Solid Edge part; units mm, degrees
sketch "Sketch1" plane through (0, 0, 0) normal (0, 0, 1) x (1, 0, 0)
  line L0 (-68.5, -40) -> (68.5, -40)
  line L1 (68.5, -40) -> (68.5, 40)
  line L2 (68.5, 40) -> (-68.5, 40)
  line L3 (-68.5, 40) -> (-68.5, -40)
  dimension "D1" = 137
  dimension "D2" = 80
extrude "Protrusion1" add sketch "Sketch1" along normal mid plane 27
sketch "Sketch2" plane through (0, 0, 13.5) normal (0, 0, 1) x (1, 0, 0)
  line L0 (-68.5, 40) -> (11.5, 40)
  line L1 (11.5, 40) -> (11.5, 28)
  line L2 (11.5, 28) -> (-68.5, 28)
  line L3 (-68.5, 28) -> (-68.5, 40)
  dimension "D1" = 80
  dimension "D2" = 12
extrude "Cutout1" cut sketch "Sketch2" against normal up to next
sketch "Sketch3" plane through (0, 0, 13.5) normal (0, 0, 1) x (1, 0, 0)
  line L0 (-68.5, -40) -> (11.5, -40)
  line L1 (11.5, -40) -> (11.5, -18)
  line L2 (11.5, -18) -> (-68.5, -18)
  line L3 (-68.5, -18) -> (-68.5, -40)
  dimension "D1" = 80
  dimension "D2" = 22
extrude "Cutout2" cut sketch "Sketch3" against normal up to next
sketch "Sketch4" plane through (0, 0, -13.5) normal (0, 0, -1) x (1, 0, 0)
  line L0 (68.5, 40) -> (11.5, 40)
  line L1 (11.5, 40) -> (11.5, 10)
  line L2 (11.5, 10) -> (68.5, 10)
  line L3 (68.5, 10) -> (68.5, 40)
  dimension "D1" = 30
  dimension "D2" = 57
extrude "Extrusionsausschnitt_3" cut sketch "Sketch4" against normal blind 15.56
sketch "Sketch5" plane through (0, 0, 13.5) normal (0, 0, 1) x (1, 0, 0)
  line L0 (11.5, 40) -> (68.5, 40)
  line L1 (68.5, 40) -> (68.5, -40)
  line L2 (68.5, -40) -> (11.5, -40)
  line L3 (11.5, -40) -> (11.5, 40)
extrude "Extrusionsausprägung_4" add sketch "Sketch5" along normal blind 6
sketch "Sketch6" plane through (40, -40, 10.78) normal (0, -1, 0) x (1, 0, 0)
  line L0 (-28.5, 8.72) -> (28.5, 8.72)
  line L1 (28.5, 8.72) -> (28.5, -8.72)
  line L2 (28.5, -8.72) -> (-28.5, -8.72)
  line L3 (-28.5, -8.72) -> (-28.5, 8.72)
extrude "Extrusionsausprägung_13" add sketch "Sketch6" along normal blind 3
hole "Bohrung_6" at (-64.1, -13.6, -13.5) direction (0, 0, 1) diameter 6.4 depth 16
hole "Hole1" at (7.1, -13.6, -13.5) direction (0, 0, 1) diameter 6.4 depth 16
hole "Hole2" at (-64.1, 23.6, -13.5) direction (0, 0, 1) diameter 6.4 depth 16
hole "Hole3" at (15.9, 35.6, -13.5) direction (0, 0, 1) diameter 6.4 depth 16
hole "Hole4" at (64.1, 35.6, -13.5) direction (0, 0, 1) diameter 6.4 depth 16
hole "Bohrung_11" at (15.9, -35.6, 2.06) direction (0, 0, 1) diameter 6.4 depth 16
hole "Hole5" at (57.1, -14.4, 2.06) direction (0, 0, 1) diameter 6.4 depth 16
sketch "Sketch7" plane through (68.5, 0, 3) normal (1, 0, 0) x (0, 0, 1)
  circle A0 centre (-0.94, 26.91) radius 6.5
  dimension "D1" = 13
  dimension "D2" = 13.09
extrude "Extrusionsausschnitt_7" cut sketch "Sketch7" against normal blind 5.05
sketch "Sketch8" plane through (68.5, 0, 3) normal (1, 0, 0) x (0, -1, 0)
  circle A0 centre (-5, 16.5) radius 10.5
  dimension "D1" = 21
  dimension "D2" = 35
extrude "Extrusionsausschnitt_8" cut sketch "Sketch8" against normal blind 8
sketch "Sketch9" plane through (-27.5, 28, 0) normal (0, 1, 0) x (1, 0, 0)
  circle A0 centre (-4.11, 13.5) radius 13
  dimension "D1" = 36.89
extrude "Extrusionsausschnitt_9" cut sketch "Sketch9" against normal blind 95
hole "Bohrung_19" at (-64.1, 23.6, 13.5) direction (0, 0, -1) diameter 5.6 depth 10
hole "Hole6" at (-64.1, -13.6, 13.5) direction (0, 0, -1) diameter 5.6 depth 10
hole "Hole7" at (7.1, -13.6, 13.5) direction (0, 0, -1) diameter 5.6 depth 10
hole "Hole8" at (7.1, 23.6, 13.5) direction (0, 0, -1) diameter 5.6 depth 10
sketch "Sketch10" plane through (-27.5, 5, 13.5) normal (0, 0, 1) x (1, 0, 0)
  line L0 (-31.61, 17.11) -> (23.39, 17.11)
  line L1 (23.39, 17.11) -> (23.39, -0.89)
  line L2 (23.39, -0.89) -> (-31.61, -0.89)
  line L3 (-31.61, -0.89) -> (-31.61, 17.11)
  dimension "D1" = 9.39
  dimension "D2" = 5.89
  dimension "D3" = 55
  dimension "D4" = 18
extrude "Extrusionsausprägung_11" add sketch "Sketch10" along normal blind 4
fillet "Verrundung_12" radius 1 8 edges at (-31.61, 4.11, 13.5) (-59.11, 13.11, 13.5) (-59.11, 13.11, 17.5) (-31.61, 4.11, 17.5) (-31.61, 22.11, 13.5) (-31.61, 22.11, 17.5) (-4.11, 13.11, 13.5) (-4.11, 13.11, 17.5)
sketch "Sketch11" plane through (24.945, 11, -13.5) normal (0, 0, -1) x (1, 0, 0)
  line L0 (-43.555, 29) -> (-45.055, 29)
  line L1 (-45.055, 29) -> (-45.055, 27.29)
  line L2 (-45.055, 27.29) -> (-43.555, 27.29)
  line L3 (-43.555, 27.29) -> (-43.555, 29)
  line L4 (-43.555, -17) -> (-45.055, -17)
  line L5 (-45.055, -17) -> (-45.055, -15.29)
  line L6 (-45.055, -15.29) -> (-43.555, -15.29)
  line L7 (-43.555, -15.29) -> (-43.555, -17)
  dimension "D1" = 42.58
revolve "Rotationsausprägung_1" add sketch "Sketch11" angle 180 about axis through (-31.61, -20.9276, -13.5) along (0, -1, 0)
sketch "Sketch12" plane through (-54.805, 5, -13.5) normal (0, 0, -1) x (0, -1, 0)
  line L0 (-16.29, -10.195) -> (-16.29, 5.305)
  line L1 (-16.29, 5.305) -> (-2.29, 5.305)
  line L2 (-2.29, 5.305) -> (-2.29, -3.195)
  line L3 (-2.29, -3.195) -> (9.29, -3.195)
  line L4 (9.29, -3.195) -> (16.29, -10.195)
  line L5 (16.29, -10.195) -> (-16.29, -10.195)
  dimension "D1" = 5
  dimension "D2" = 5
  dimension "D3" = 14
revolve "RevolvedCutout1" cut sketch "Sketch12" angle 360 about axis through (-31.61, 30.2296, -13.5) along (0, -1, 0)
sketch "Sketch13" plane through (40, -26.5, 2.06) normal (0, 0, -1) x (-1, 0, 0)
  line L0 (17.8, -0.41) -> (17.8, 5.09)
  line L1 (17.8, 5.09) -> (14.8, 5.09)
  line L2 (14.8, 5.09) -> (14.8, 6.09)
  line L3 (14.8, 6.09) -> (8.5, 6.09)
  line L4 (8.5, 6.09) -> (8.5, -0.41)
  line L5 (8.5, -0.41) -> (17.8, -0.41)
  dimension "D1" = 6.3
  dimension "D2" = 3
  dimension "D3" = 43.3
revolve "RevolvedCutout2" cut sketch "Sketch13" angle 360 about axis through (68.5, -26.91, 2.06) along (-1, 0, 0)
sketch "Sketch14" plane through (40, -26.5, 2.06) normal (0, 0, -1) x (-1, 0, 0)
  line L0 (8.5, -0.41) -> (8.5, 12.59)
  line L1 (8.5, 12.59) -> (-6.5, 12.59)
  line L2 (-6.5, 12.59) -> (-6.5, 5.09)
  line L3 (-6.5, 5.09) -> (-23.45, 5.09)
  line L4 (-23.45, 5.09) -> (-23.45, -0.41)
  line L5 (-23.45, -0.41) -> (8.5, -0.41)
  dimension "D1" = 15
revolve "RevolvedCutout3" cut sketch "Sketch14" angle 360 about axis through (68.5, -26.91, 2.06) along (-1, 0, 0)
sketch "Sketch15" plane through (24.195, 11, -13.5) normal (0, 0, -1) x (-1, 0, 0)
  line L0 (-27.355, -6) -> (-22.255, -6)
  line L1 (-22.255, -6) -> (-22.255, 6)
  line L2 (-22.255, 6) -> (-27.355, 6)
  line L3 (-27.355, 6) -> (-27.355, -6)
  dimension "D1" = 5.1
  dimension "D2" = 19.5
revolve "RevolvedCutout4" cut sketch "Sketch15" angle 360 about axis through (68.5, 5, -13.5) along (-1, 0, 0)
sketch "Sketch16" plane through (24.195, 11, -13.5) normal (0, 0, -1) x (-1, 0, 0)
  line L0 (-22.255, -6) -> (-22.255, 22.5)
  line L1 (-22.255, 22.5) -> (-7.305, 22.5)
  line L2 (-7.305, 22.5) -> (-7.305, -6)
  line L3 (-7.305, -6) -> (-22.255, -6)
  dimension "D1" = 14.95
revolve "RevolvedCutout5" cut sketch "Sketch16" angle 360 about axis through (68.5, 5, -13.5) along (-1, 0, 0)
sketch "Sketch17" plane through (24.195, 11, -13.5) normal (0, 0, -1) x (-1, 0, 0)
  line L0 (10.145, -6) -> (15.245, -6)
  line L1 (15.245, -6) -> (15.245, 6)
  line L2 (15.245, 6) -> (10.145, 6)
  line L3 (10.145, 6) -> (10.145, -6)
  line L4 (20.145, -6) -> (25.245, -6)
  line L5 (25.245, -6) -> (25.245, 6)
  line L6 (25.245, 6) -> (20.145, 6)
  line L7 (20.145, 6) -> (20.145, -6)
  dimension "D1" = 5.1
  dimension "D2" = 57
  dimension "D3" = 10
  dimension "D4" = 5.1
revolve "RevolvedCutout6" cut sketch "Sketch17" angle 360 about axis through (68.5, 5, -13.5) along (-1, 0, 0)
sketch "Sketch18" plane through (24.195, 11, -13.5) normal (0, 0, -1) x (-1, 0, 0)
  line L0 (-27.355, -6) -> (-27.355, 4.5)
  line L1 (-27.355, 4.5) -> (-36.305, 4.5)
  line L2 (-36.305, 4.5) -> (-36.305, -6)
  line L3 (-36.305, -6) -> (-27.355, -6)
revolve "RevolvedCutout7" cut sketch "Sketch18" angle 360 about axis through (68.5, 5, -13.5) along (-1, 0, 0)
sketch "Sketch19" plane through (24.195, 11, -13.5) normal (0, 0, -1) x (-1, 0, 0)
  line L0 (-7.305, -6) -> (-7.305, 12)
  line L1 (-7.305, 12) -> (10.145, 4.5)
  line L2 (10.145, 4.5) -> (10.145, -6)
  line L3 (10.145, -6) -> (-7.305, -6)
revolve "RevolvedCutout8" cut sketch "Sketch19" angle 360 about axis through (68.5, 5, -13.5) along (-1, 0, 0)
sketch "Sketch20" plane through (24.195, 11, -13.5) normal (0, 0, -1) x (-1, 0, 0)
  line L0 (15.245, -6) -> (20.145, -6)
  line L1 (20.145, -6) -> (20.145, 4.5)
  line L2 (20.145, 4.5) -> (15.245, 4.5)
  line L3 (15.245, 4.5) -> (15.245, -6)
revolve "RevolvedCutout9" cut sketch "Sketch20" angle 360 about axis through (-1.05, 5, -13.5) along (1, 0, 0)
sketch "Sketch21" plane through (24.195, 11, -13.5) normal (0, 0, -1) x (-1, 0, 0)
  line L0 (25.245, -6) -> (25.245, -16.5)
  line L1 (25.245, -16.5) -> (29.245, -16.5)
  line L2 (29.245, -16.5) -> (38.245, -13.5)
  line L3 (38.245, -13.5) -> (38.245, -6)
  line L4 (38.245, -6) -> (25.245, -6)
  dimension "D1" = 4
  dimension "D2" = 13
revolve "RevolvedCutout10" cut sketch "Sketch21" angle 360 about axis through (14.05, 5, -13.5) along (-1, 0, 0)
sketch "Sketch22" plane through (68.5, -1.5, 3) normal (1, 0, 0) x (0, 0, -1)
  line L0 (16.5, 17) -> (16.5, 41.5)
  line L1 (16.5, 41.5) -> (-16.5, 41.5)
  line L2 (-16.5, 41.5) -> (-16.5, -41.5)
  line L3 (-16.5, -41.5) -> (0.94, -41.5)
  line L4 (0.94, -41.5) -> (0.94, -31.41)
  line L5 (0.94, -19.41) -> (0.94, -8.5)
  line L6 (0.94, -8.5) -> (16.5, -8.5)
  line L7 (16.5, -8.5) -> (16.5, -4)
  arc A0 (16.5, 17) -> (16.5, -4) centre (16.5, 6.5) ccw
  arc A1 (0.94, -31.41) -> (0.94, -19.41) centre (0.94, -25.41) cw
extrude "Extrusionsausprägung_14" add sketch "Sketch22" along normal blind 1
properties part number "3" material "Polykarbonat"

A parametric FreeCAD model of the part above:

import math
import FreeCAD as App
import Part
import Sketcher

V = App.Vector
Q = App.Units.Quantity


def edges_at(feature, points):
    """Names of the edges that pass closest to the given points."""
    edges = feature.Shape.Edges
    near = lambda p: min(range(len(edges)), key=lambda i: edges[i].distToShape(Part.Vertex(*p))[0])
    return sorted({f"Edge{near(p) + 1}" for p in points})


def add_polygon(sketch, points):
    """Adds a closed chain of lines whose ends are joined by coincident constraints."""
    first, n = sketch.GeometryCount, len(points)
    for a, b in zip(points, points[1:] + points[:1]):
        sketch.addGeometry(Part.LineSegment(App.Vector(*a, 0), App.Vector(*b, 0)), False)
    for i in range(n):
        sketch.addConstraint(Sketcher.Constraint("Coincident", first + i, 2, first + (i + 1) % n, 1))

doc = App.newDocument("Part")
body = doc.addObject("PartDesign::Body", "Body")

sketch1 = body.newObject("Sketcher::SketchObject", "Sketch")
sketch1.AttachmentSupport = (doc.getObject("XY_Plane"), [""])
sketch1.MapMode = "FlatFace"
add_polygon(sketch1, [(-68.5, 40), (-68.5, -40), (68.5, -40), (68.5, 40)])
sketch1.addConstraint(Sketcher.Constraint("Vertical", 0))
sketch1.addConstraint(Sketcher.Constraint("Horizontal", 1))
sketch1.addConstraint(Sketcher.Constraint("Vertical", 2))
sketch1.addConstraint(Sketcher.Constraint("Horizontal", 3))
sketch1.addConstraint(Sketcher.Constraint("Symmetric", 0, 2, 2, 2, -1, 1))
sketch1.addConstraint(Sketcher.Constraint("DistanceX", 0, 2, -1, 1, Q("68.5 mm")))
sketch1.addConstraint(Sketcher.Constraint("DistanceY", 0, 2, 0, 1, Q("80 mm")))
pad1 = body.newObject("PartDesign::Pad", "Pad")
pad1.Profile = sketch1
pad1.Length = 27
pad1.Midplane = True

sketch2 = body.newObject("Sketcher::SketchObject", "Sketch001")
sketch2.AttachmentSupport = (doc.getObject("XY_Plane"), [""])
sketch2.MapMode = "FlatFace"
sketch2.AttachmentOffset = App.Placement(V(0, 0, 13.5), App.Rotation())
add_polygon(sketch2, [(11.5, 40), (-68.5, 40), (-68.5, 28), (11.5, 28)])
sketch2.addConstraint(Sketcher.Constraint("Horizontal", 0))
sketch2.addConstraint(Sketcher.Constraint("Vertical", 1))
sketch2.addConstraint(Sketcher.Constraint("Horizontal", 2))
sketch2.addConstraint(Sketcher.Constraint("Vertical", 3))
sketch2.addConstraint(Sketcher.Constraint("DistanceX", 0, 2, -1, 1, Q("68.5 mm")))
sketch2.addConstraint(Sketcher.Constraint("DistanceX", -1, 1, 2, 2, Q("11.5 mm")))
sketch2.addConstraint(Sketcher.Constraint("DistanceY", 1, 2, 1, 1, Q("12 mm")))
sketch2.addConstraint(Sketcher.Constraint("DistanceY", -1, 1, 0, 2, Q("40 mm")))
pocket1 = body.newObject("PartDesign::Pocket", "Pocket")
pocket1.Profile = sketch2
pocket1.Type = "UpToFirst"

sketch3 = body.newObject("Sketcher::SketchObject", "Sketch002")
sketch3.AttachmentSupport = (doc.getObject("XY_Plane"), [""])
sketch3.MapMode = "FlatFace"
sketch3.AttachmentOffset = App.Placement(V(0, 0, 13.5), App.Rotation())
add_polygon(sketch3, [(-68.5, -18), (-68.5, -40), (11.5, -40), (11.5, -18)])
sketch3.addConstraint(Sketcher.Constraint("Vertical", 0))
sketch3.addConstraint(Sketcher.Constraint("Horizontal", 1))
sketch3.addConstraint(Sketcher.Constraint("Vertical", 2))
sketch3.addConstraint(Sketcher.Constraint("Horizontal", 3))
sketch3.addConstraint(Sketcher.Constraint("DistanceX", -1, 1, 1, 2, Q("11.5 mm")))
sketch3.addConstraint(Sketcher.Constraint("DistanceX", 1, 1, 1, 2, Q("80 mm")))
sketch3.addConstraint(Sketcher.Constraint("DistanceY", 0, 2, 0, 1, Q("22 mm")))
sketch3.addConstraint(Sketcher.Constraint("DistanceY", 0, 2, -1, 1, Q("40 mm")))
pocket2 = body.newObject("PartDesign::Pocket", "Pocket001")
pocket2.Profile = sketch3
pocket2.Type = "UpToFirst"

sketch4 = body.newObject("Sketcher::SketchObject", "Sketch003")
sketch4.AttachmentSupport = (doc.getObject("XY_Plane"), [""])
sketch4.MapMode = "FlatFace"
sketch4.AttachmentOffset = App.Placement(V(0, 0, -13.5), App.Rotation())
add_polygon(sketch4, [(68.5, -10), (68.5, -40), (11.5, -40), (11.5, -10)])
sketch4.addConstraint(Sketcher.Constraint("Vertical", 0))
sketch4.addConstraint(Sketcher.Constraint("Horizontal", 1))
sketch4.addConstraint(Sketcher.Constraint("Vertical", 2))
sketch4.addConstraint(Sketcher.Constraint("Horizontal", 3))
sketch4.addConstraint(Sketcher.Constraint("DistanceX", -1, 1, 0, 2, Q("68.5 mm")))
sketch4.addConstraint(Sketcher.Constraint("DistanceX", -1, 1, 1, 2, Q("11.5 mm")))
sketch4.addConstraint(Sketcher.Constraint("DistanceY", 0, 2, 0, 1, Q("30 mm")))
sketch4.addConstraint(Sketcher.Constraint("DistanceY", 0, 2, -1, 1, Q("40 mm")))
pocket3 = body.newObject("PartDesign::Pocket", "Pocket002")
pocket3.Profile = sketch4
pocket3.Length = 15.56
pocket3.Reversed = True

sketch5 = body.newObject("Sketcher::SketchObject", "Sketch004")
sketch5.AttachmentSupport = (doc.getObject("XY_Plane"), [""])
sketch5.MapMode = "FlatFace"
sketch5.AttachmentOffset = App.Placement(V(0, 0, 13.5), App.Rotation())
add_polygon(sketch5, [(68.5, 40), (11.5, 40), (11.5, -40), (68.5, -40)])
sketch5.addConstraint(Sketcher.Constraint("Horizontal", 0))
sketch5.addConstraint(Sketcher.Constraint("Vertical", 1))
sketch5.addConstraint(Sketcher.Constraint("Horizontal", 2))
sketch5.addConstraint(Sketcher.Constraint("Vertical", 3))
sketch5.addConstraint(Sketcher.Constraint("DistanceX", 0, 2, 0, 1, Q("57 mm")))
sketch5.addConstraint(Sketcher.Constraint("DistanceY", 1, 2, 1, 1, Q("80 mm")))
sketch5.addConstraint(Sketcher.Constraint("DistanceY", -1, 1, 0, 2, Q("40 mm")))
sketch5.addConstraint(Sketcher.Constraint("DistanceX", -1, 1, 0, 2, Q("11.5 mm")))
pad2 = body.newObject("PartDesign::Pad", "Pad001")
pad2.Profile = sketch5
pad2.Length = 6

sketch6 = body.newObject("Sketcher::SketchObject", "Sketch005")
sketch6.AttachmentSupport = (doc.getObject("XZ_Plane"), [""])
sketch6.MapMode = "FlatFace"
sketch6.AttachmentOffset = App.Placement(V(0, 0, 40), App.Rotation())
add_polygon(sketch6, [(68.5, 19.5), (11.5, 19.5), (11.5, 2.06), (68.5, 2.06)])
sketch6.addConstraint(Sketcher.Constraint("Horizontal", 0))
sketch6.addConstraint(Sketcher.Constraint("Vertical", 1))
sketch6.addConstraint(Sketcher.Constraint("Horizontal", 2))
sketch6.addConstraint(Sketcher.Constraint("Vertical", 3))
sketch6.addConstraint(Sketcher.Constraint("DistanceX", 0, 2, 0, 1, Q("57 mm")))
sketch6.addConstraint(Sketcher.Constraint("DistanceY", 1, 2, 1, 1, Q("17.44 mm")))
sketch6.addConstraint(Sketcher.Constraint("DistanceX", -1, 1, 0, 2, Q("11.5 mm")))
sketch6.addConstraint(Sketcher.Constraint("DistanceY", -1, 1, 0, 2, Q("19.5 mm")))
pad3 = body.newObject("PartDesign::Pad", "Pad002")
pad3.Profile = sketch6
pad3.Length = 3

sketch7 = body.newObject("Sketcher::SketchObject", "Sketch006")
sketch7.AttachmentSupport = (doc.getObject("XY_Plane"), [""])
sketch7.MapMode = "FlatFace"
sketch7.AttachmentOffset = App.Placement(V(0, 0, -13.5), App.Rotation())
sketch7.addGeometry(Part.Circle(V(-64.1, -13.6, 0), V(0, 0, 1), 3.2), False)
sketch7.addConstraint(Sketcher.Constraint("Diameter", 0, Q("6.4 mm")))
sketch7.addConstraint(Sketcher.Constraint("DistanceX", 0, 3, -1, 1, Q("64.1 mm")))
sketch7.addConstraint(Sketcher.Constraint("DistanceY", 0, 3, -1, 1, Q("13.6 mm")))
doc.recompute()
hole = body.newObject("PartDesign::Hole", "Hole")
hole.Profile = sketch7
hole.ThreadType = "None"
hole.Diameter = 6.4
hole.DepthType = "Dimension"
hole.Depth = 16
hole.DrillPoint = "Flat"
hole.Reversed = True

sketch8 = body.newObject("Sketcher::SketchObject", "Sketch007")
sketch8.AttachmentSupport = (doc.getObject("XY_Plane"), [""])
sketch8.MapMode = "FlatFace"
sketch8.AttachmentOffset = App.Placement(V(0, 0, -13.5), App.Rotation())
sketch8.addGeometry(Part.Circle(V(7.1, -13.6, 0), V(0, 0, 1), 3.2), False)
sketch8.addConstraint(Sketcher.Constraint("Diameter", 0, Q("6.4 mm")))
sketch8.addConstraint(Sketcher.Constraint("DistanceX", -1, 1, 0, 3, Q("7.1 mm")))
sketch8.addConstraint(Sketcher.Constraint("DistanceY", 0, 3, -1, 1, Q("13.6 mm")))
doc.recompute()
hole2 = body.newObject("PartDesign::Hole", "Hole001")
hole2.Profile = sketch8
hole2.ThreadType = "None"
hole2.Diameter = 6.4
hole2.DepthType = "Dimension"
hole2.Depth = 16
hole2.DrillPoint = "Flat"
hole2.Reversed = True

sketch9 = body.newObject("Sketcher::SketchObject", "Sketch008")
sketch9.AttachmentSupport = (doc.getObject("XY_Plane"), [""])
sketch9.MapMode = "FlatFace"
sketch9.AttachmentOffset = App.Placement(V(0, 0, -13.5), App.Rotation())
sketch9.addGeometry(Part.Circle(V(-64.1, 23.6, 0), V(0, 0, 1), 3.2), False)
sketch9.addConstraint(Sketcher.Constraint("Diameter", 0, Q("6.4 mm")))
sketch9.addConstraint(Sketcher.Constraint("DistanceX", 0, 3, -1, 1, Q("64.1 mm")))
sketch9.addConstraint(Sketcher.Constraint("DistanceY", -1, 1, 0, 3, Q("23.6 mm")))
doc.recompute()
hole3 = body.newObject("PartDesign::Hole", "Hole002")
hole3.Profile = sketch9
hole3.ThreadType = "None"
hole3.Diameter = 6.4
hole3.DepthType = "Dimension"
hole3.Depth = 16
hole3.DrillPoint = "Flat"
hole3.Reversed = True

sketch10 = body.newObject("Sketcher::SketchObject", "Sketch009")
sketch10.AttachmentSupport = (doc.getObject("XY_Plane"), [""])
sketch10.MapMode = "FlatFace"
sketch10.AttachmentOffset = App.Placement(V(0, 0, -13.5), App.Rotation())
sketch10.addGeometry(Part.Circle(V(15.9, 35.6, 0), V(0, 0, 1), 3.2), False)
sketch10.addConstraint(Sketcher.Constraint("Diameter", 0, Q("6.4 mm")))
sketch10.addConstraint(Sketcher.Constraint("DistanceX", -1, 1, 0, 3, Q("15.9 mm")))
sketch10.addConstraint(Sketcher.Constraint("DistanceY", -1, 1, 0, 3, Q("35.6 mm")))
doc.recompute()
hole4 = body.newObject("PartDesign::Hole", "Hole003")
hole4.Profile = sketch10
hole4.ThreadType = "None"
hole4.Diameter = 6.4
hole4.DepthType = "Dimension"
hole4.Depth = 16
hole4.DrillPoint = "Flat"
hole4.Reversed = True

sketch11 = body.newObject("Sketcher::SketchObject", "Sketch010")
sketch11.AttachmentSupport = (doc.getObject("XY_Plane"), [""])
sketch11.MapMode = "FlatFace"
sketch11.AttachmentOffset = App.Placement(V(0, 0, -13.5), App.Rotation())
sketch11.addGeometry(Part.Circle(V(64.1, 35.6, 0), V(0, 0, 1), 3.2), False)
sketch11.addConstraint(Sketcher.Constraint("Diameter", 0, Q("6.4 mm")))
sketch11.addConstraint(Sketcher.Constraint("DistanceX", -1, 1, 0, 3, Q("64.1 mm")))
sketch11.addConstraint(Sketcher.Constraint("DistanceY", -1, 1, 0, 3, Q("35.6 mm")))
doc.recompute()
hole5 = body.newObject("PartDesign::Hole", "Hole004")
hole5.Profile = sketch11
hole5.ThreadType = "None"
hole5.Diameter = 6.4
hole5.DepthType = "Dimension"
hole5.Depth = 16
hole5.DrillPoint = "Flat"
hole5.Reversed = True

sketch12 = body.newObject("Sketcher::SketchObject", "Sketch011")
sketch12.AttachmentSupport = (doc.getObject("XY_Plane"), [""])
sketch12.MapMode = "FlatFace"
sketch12.AttachmentOffset = App.Placement(V(0, 0, 2.06), App.Rotation())
sketch12.addGeometry(Part.Circle(V(15.9, -35.6, 0), V(0, 0, 1), 3.2), False)
sketch12.addConstraint(Sketcher.Constraint("Diameter", 0, Q("6.4 mm")))
sketch12.addConstraint(Sketcher.Constraint("DistanceX", -1, 1, 0, 3, Q("15.9 mm")))
sketch12.addConstraint(Sketcher.Constraint("DistanceY", 0, 3, -1, 1, Q("35.6 mm")))
doc.recompute()
hole6 = body.newObject("PartDesign::Hole", "Hole005")
hole6.Profile = sketch12
hole6.ThreadType = "None"
hole6.Diameter = 6.4
hole6.DepthType = "Dimension"
hole6.Depth = 16
hole6.DrillPoint = "Flat"
hole6.Reversed = True

sketch13 = body.newObject("Sketcher::SketchObject", "Sketch012")
sketch13.AttachmentSupport = (doc.getObject("XY_Plane"), [""])
sketch13.MapMode = "FlatFace"
sketch13.AttachmentOffset = App.Placement(V(0, 0, 2.06), App.Rotation())
sketch13.addGeometry(Part.Circle(V(57.1, -14.4, 0), V(0, 0, 1), 3.2), False)
sketch13.addConstraint(Sketcher.Constraint("Diameter", 0, Q("6.4 mm")))
sketch13.addConstraint(Sketcher.Constraint("DistanceX", -1, 1, 0, 3, Q("57.1 mm")))
sketch13.addConstraint(Sketcher.Constraint("DistanceY", 0, 3, -1, 1, Q("14.4 mm")))
doc.recompute()
hole7 = body.newObject("PartDesign::Hole", "Hole006")
hole7.Profile = sketch13
hole7.ThreadType = "None"
hole7.Diameter = 6.4
hole7.DepthType = "Dimension"
hole7.Depth = 16
hole7.DrillPoint = "Flat"
hole7.Reversed = True

sketch14 = body.newObject("Sketcher::SketchObject", "Sketch013")
sketch14.AttachmentSupport = (doc.getObject("YZ_Plane"), [""])
sketch14.MapMode = "FlatFace"
sketch14.AttachmentOffset = App.Placement(V(0, 0, 68.5), App.Rotation())
sketch14.addGeometry(Part.Circle(V(-26.91, 2.06, 0), V(0, 0, 1), 6.5), False)
sketch14.addConstraint(Sketcher.Constraint("Diameter", 0, Q("13 mm")))
sketch14.addConstraint(Sketcher.Constraint("DistanceX", 0, 3, -1, 1, Q("26.91 mm")))
sketch14.addConstraint(Sketcher.Constraint("DistanceY", -1, 1, 0, 3, Q("2.06 mm")))
pocket4 = body.newObject("PartDesign::Pocket", "Pocket003")
pocket4.Profile = sketch14
pocket4.Length = 5.05

sketch15 = body.newObject("Sketcher::SketchObject", "Sketch014")
sketch15.AttachmentSupport = (doc.getObject("YZ_Plane"), [""])
sketch15.MapMode = "FlatFace"
sketch15.AttachmentOffset = App.Placement(V(0, 0, 68.5), App.Rotation())
sketch15.addGeometry(Part.Circle(V(5, -13.5, 0), V(0, 0, 1), 10.5), False)
sketch15.addConstraint(Sketcher.Constraint("Diameter", 0, Q("21 mm")))
sketch15.addConstraint(Sketcher.Constraint("DistanceX", -1, 1, 0, 3, Q("5 mm")))
sketch15.addConstraint(Sketcher.Constraint("DistanceY", 0, 3, -1, 1, Q("13.5 mm")))
pocket5 = body.newObject("PartDesign::Pocket", "Pocket004")
pocket5.Profile = sketch15
pocket5.Length = 8

sketch16 = body.newObject("Sketcher::SketchObject", "Sketch015")
sketch16.AttachmentSupport = (doc.getObject("XZ_Plane"), [""])
sketch16.MapMode = "FlatFace"
sketch16.AttachmentOffset = App.Placement(V(0, 0, -28), App.Rotation())
sketch16.addGeometry(Part.Circle(V(-31.61, -13.5, 0), V(0, 0, 1), 13), False)
sketch16.addConstraint(Sketcher.Constraint("Diameter", 0, Q("26 mm")))
sketch16.addConstraint(Sketcher.Constraint("DistanceY", 0, 3, -1, 1, Q("13.5 mm")))
sketch16.addConstraint(Sketcher.Constraint("DistanceX", 0, 3, -1, 1, Q("31.61 mm")))
pocket6 = body.newObject("PartDesign::Pocket", "Pocket005")
pocket6.Profile = sketch16
pocket6.Length = 95
pocket6.Reversed = True

sketch17 = body.newObject("Sketcher::SketchObject", "Sketch016")
sketch17.AttachmentSupport = (doc.getObject("XY_Plane"), [""])
sketch17.MapMode = "FlatFace"
sketch17.AttachmentOffset = App.Placement(V(0, 0, 13.5), App.Rotation())
sketch17.addGeometry(Part.Circle(V(-64.1, 23.6, 0), V(0, 0, 1), 2.8), False)
sketch17.addConstraint(Sketcher.Constraint("Diameter", 0, Q("5.6 mm")))
sketch17.addConstraint(Sketcher.Constraint("DistanceX", 0, 3, -1, 1, Q("64.1 mm")))
sketch17.addConstraint(Sketcher.Constraint("DistanceY", -1, 1, 0, 3, Q("23.6 mm")))
doc.recompute()
hole8 = body.newObject("PartDesign::Hole", "Hole007")
hole8.Profile = sketch17
hole8.ThreadType = "None"
hole8.Diameter = 5.6
hole8.DepthType = "Dimension"
hole8.Depth = 10
hole8.DrillPoint = "Flat"

sketch18 = body.newObject("Sketcher::SketchObject", "Sketch017")
sketch18.AttachmentSupport = (doc.getObject("XY_Plane"), [""])
sketch18.MapMode = "FlatFace"
sketch18.AttachmentOffset = App.Placement(V(0, 0, 13.5), App.Rotation())
sketch18.addGeometry(Part.Circle(V(-64.1, -13.6, 0), V(0, 0, 1), 2.8), False)
sketch18.addConstraint(Sketcher.Constraint("Diameter", 0, Q("5.6 mm")))
sketch18.addConstraint(Sketcher.Constraint("DistanceX", 0, 3, -1, 1, Q("64.1 mm")))
sketch18.addConstraint(Sketcher.Constraint("DistanceY", 0, 3, -1, 1, Q("13.6 mm")))
doc.recompute()
hole9 = body.newObject("PartDesign::Hole", "Hole008")
hole9.Profile = sketch18
hole9.ThreadType = "None"
hole9.Diameter = 5.6
hole9.DepthType = "Dimension"
hole9.Depth = 10
hole9.DrillPoint = "Flat"

sketch19 = body.newObject("Sketcher::SketchObject", "Sketch018")
sketch19.AttachmentSupport = (doc.getObject("XY_Plane"), [""])
sketch19.MapMode = "FlatFace"
sketch19.AttachmentOffset = App.Placement(V(0, 0, 13.5), App.Rotation())
sketch19.addGeometry(Part.Circle(V(7.1, -13.6, 0), V(0, 0, 1), 2.8), False)
sketch19.addConstraint(Sketcher.Constraint("Diameter", 0, Q("5.6 mm")))
sketch19.addConstraint(Sketcher.Constraint("DistanceX", -1, 1, 0, 3, Q("7.1 mm")))
sketch19.addConstraint(Sketcher.Constraint("DistanceY", 0, 3, -1, 1, Q("13.6 mm")))
doc.recompute()
hole10 = body.newObject("PartDesign::Hole", "Hole009")
hole10.Profile = sketch19
hole10.ThreadType = "None"
hole10.Diameter = 5.6
hole10.DepthType = "Dimension"
hole10.Depth = 10
hole10.DrillPoint = "Flat"

sketch20 = body.newObject("Sketcher::SketchObject", "Sketch019")
sketch20.AttachmentSupport = (doc.getObject("XY_Plane"), [""])
sketch20.MapMode = "FlatFace"
sketch20.AttachmentOffset = App.Placement(V(0, 0, 13.5), App.Rotation())
sketch20.addGeometry(Part.Circle(V(7.1, 23.6, 0), V(0, 0, 1), 2.8), False)
sketch20.addConstraint(Sketcher.Constraint("Diameter", 0, Q("5.6 mm")))
sketch20.addConstraint(Sketcher.Constraint("DistanceX", -1, 1, 0, 3, Q("7.1 mm")))
sketch20.addConstraint(Sketcher.Constraint("DistanceY", -1, 1, 0, 3, Q("23.6 mm")))
doc.recompute()
hole11 = body.newObject("PartDesign::Hole", "Hole010")
hole11.Profile = sketch20
hole11.ThreadType = "None"
hole11.Diameter = 5.6
hole11.DepthType = "Dimension"
hole11.Depth = 10
hole11.DrillPoint = "Flat"

sketch21 = body.newObject("Sketcher::SketchObject", "Sketch020")
sketch21.AttachmentSupport = (doc.getObject("XY_Plane"), [""])
sketch21.MapMode = "FlatFace"
sketch21.AttachmentOffset = App.Placement(V(0, 0, 13.5), App.Rotation())
add_polygon(sketch21, [(-4.11, 22.11), (-59.11, 22.11), (-59.11, 4.11), (-4.11, 4.11)])
sketch21.addConstraint(Sketcher.Constraint("Horizontal", 0))
sketch21.addConstraint(Sketcher.Constraint("Vertical", 1))
sketch21.addConstraint(Sketcher.Constraint("Horizontal", 2))
sketch21.addConstraint(Sketcher.Constraint("Vertical", 3))
sketch21.addConstraint(Sketcher.Constraint("DistanceX", 0, 2, 0, 1, Q("55 mm")))
sketch21.addConstraint(Sketcher.Constraint("DistanceY", 1, 2, 1, 1, Q("18 mm")))
sketch21.addConstraint(Sketcher.Constraint("DistanceX", 0, 2, -1, 1, Q("59.11 mm")))
sketch21.addConstraint(Sketcher.Constraint("DistanceY", -1, 1, 0, 2, Q("22.11 mm")))
pad4 = body.newObject("PartDesign::Pad", "Pad003")
pad4.Profile = sketch21
pad4.Length = 4
doc.recompute()

fillet = body.newObject("PartDesign::Fillet", "Fillet")
fillet.Base = (pad4, edges_at(pad4, [
    (-31.61, 4.11, 13.5),
    (-59.11, 13.11, 13.5),
    (-59.11, 13.11, 17.5),
    (-31.61, 4.11, 17.5),
    (-31.61, 22.11, 13.5),
    (-31.61, 22.11, 17.5),
    (-4.11, 13.11, 13.5),
    (-4.11, 13.11, 17.5),
]))
fillet.Radius = 1

sketch22 = body.newObject("Sketcher::SketchObject", "Sketch021")
sketch22.AttachmentSupport = (doc.getObject("XY_Plane"), [""])
sketch22.MapMode = "FlatFace"
sketch22.AttachmentOffset = App.Placement(V(0, 0, -13.5), App.Rotation())
add_polygon(sketch22, [(-18.61, -16.29), (-18.61, -18), (-20.11, -18), (-20.11, -16.29)])
add_polygon(sketch22, [(-20.11, 28), (-18.61, 28), (-18.61, 26.29), (-20.11, 26.29)])
sketch22.addGeometry(Part.LineSegment(V(-31.61, 28, 0), V(-31.61, -18, 0)), True)
sketch22.addConstraint(Sketcher.Constraint("Vertical", 0))
sketch22.addConstraint(Sketcher.Constraint("Horizontal", 1))
sketch22.addConstraint(Sketcher.Constraint("Vertical", 2))
sketch22.addConstraint(Sketcher.Constraint("Horizontal", 3))
sketch22.addConstraint(Sketcher.Constraint("Horizontal", 4))
sketch22.addConstraint(Sketcher.Constraint("Vertical", 5))
sketch22.addConstraint(Sketcher.Constraint("Horizontal", 6))
sketch22.addConstraint(Sketcher.Constraint("Vertical", 7))
sketch22.addConstraint(Sketcher.Constraint("Vertical", 8))
sketch22.addConstraint(Sketcher.Constraint("Horizontal", 7, 2, 8, 1))
sketch22.addConstraint(Sketcher.Constraint("Horizontal", 1, 2, 8, 2))
sketch22.addConstraint(Sketcher.Constraint("Vertical", 3, 2, 4, 2))
sketch22.addConstraint(Sketcher.Constraint("Vertical", 2, 2, 6, 2))
sketch22.addConstraint(Sketcher.Constraint("Equal", 2, 5))
sketch22.addConstraint(Sketcher.Constraint("DistanceY", 8, 2, 8, 1, Q("46 mm")))
sketch22.addConstraint(Sketcher.Constraint("DistanceX", 1, 2, 1, 1, Q("1.5 mm")))
sketch22.addConstraint(Sketcher.Constraint("DistanceY", 0, 2, -1, 1, Q("18 mm")))
sketch22.addConstraint(Sketcher.Constraint("DistanceX", 8, 1, 4, 2, Q("13 mm")))
sketch22.addConstraint(Sketcher.Constraint("DistanceY", 0, 2, 0, 1, Q("1.71 mm")))
sketch22.addConstraint(Sketcher.Constraint("DistanceX", 0, 2, -1, 1, Q("18.61 mm")))
revolution = body.newObject("PartDesign::Revolution", "Revolution")
revolution.Profile = sketch22
revolution.ReferenceAxis = (sketch22, ["Axis0"])
revolution.Angle = 180

sketch23 = body.newObject("Sketcher::SketchObject", "Sketch022")
sketch23.AttachmentSupport = (doc.getObject("XY_Plane"), [""])
sketch23.MapMode = "FlatFace"
sketch23.AttachmentOffset = App.Placement(V(0, 0, -13.5), App.Rotation())
add_polygon(sketch23, [(-60.11, 21.29), (-44.61, 21.29), (-44.61, -11.29), (-51.61, -4.29), (-51.61, 7.29), (-60.11, 7.29)])
sketch23.addGeometry(Part.LineSegment(V(-31.61, 21.29, 0), V(-31.61, -11.29, 0)), True)
sketch23.addConstraint(Sketcher.Constraint("Horizontal", 0))
sketch23.addConstraint(Sketcher.Constraint("Vertical", 1))
sketch23.addConstraint(Sketcher.Constraint("Vertical", 3))
sketch23.addConstraint(Sketcher.Constraint("Horizontal", 4))
sketch23.addConstraint(Sketcher.Constraint("Vertical", 5))
sketch23.addConstraint(Sketcher.Constraint("Vertical", 6))
sketch23.addConstraint(Sketcher.Constraint("Horizontal", 5, 2, 6, 1))
sketch23.addConstraint(Sketcher.Constraint("Horizontal", 1, 2, 6, 2))
sketch23.addConstraint(Sketcher.Constraint("DistanceY", 5, 1, 5, 2, Q("14 mm")))
sketch23.addConstraint(Sketcher.Constraint("Angle", 2, Q("135 deg")))
sketch23.addConstraint(Sketcher.Constraint("DistanceX", 0, 1, 0, 2, Q("15.5 mm")))
sketch23.addConstraint(Sketcher.Constraint("DistanceX", 4, 2, 4, 1, Q("8.5 mm")))
sketch23.addConstraint(Sketcher.Constraint("DistanceX", 0, 2, 6, 1, Q("13 mm")))
sketch23.addConstraint(Sketcher.Constraint("DistanceY", 1, 2, 1, 1, Q("32.58 mm")))
sketch23.addConstraint(Sketcher.Constraint("DistanceX", 0, 2, -1, 1, Q("44.61 mm")))
sketch23.addConstraint(Sketcher.Constraint("DistanceY", -1, 1, 0, 2, Q("21.29 mm")))
groove = body.newObject("PartDesign::Groove", "Groove")
groove.Profile = sketch23
groove.ReferenceAxis = (sketch23, ["Axis0"])
groove.Angle = 360

sketch24 = body.newObject("Sketcher::SketchObject", "Sketch023")
sketch24.AttachmentSupport = (doc.getObject("XY_Plane"), [""])
sketch24.MapMode = "FlatFace"
sketch24.AttachmentOffset = App.Placement(V(0, 0, 2.06), App.Rotation())
add_polygon(sketch24, [(31.5, -26.91), (22.2, -26.91), (22.2, -21.41), (25.2, -21.41), (25.2, -20.41), (31.5, -20.41)])
sketch24.addGeometry(Part.LineSegment(V(31.5, -26.91, 0), V(22.2, -26.91, 0)), True)
sketch24.addConstraint(Sketcher.Constraint("Horizontal", 0))
sketch24.addConstraint(Sketcher.Constraint("Vertical", 1))
sketch24.addConstraint(Sketcher.Constraint("Horizontal", 2))
sketch24.addConstraint(Sketcher.Constraint("Vertical", 3))
sketch24.addConstraint(Sketcher.Constraint("Horizontal", 4))
sketch24.addConstraint(Sketcher.Constraint("Vertical", 5))
sketch24.addConstraint(Sketcher.Constraint("Horizontal", 6))
sketch24.addConstraint(Sketcher.Constraint("Coincident", 6, 1, 5, 2))
sketch24.addConstraint(Sketcher.Constraint("Vertical", 1, 2, 6, 2))
sketch24.addConstraint(Sketcher.Constraint("DistanceX", 2, 1, 2, 2, Q("3 mm")))
sketch24.addConstraint(Sketcher.Constraint("DistanceY", 3, 1, 3, 2, Q("1 mm")))
sketch24.addConstraint(Sketcher.Constraint("DistanceX", 0, 2, 0, 1, Q("9.3 mm")))
sketch24.addConstraint(Sketcher.Constraint("DistanceY", 1, 1, 1, 2, Q("5.5 mm")))
sketch24.addConstraint(Sketcher.Constraint("DistanceX", -1, 1, 0, 2, Q("22.2 mm")))
sketch24.addConstraint(Sketcher.Constraint("DistanceY", 0, 2, -1, 1, Q("26.91 mm")))
groove2 = body.newObject("PartDesign::Groove", "Groove001")
groove2.Profile = sketch24
groove2.ReferenceAxis = (sketch24, ["Axis0"])
groove2.Angle = 360

sketch25 = body.newObject("Sketcher::SketchObject", "Sketch024")
sketch25.AttachmentSupport = (doc.getObject("XY_Plane"), [""])
sketch25.MapMode = "FlatFace"
sketch25.AttachmentOffset = App.Placement(V(0, 0, 2.06), App.Rotation())
add_polygon(sketch25, [(63.45, -26.91), (31.5, -26.91), (31.5, -13.91), (46.5, -13.91), (46.5, -21.41), (63.45, -21.41)])
sketch25.addGeometry(Part.LineSegment(V(63.45, -26.91, 0), V(31.5, -26.91, 0)), True)
sketch25.addConstraint(Sketcher.Constraint("Horizontal", 0))
sketch25.addConstraint(Sketcher.Constraint("Vertical", 1))
sketch25.addConstraint(Sketcher.Constraint("Horizontal", 2))
sketch25.addConstraint(Sketcher.Constraint("Vertical", 3))
sketch25.addConstraint(Sketcher.Constraint("Horizontal", 4))
sketch25.addConstraint(Sketcher.Constraint("Vertical", 5))
sketch25.addConstraint(Sketcher.Constraint("Horizontal", 6))
sketch25.addConstraint(Sketcher.Constraint("Coincident", 6, 1, 5, 2))
sketch25.addConstraint(Sketcher.Constraint("Vertical", 1, 2, 6, 2))
sketch25.addConstraint(Sketcher.Constraint("DistanceX", 2, 1, 2, 2, Q("15 mm")))
sketch25.addConstraint(Sketcher.Constraint("DistanceY", 1, 1, 1, 2, Q("13 mm")))
sketch25.addConstraint(Sketcher.Constraint("DistanceY", 3, 2, 3, 1, Q("7.5 mm")))
sketch25.addConstraint(Sketcher.Constraint("DistanceX", 0, 2, 0, 1, Q("31.95 mm")))
sketch25.addConstraint(Sketcher.Constraint("DistanceX", -1, 1, 0, 2, Q("31.5 mm")))
sketch25.addConstraint(Sketcher.Constraint("DistanceY", 0, 2, -1, 1, Q("26.91 mm")))
groove3 = body.newObject("PartDesign::Groove", "Groove002")
groove3.Profile = sketch25
groove3.ReferenceAxis = (sketch25, ["Axis0"])
groove3.Angle = 360

sketch26 = body.newObject("Sketcher::SketchObject", "Sketch025")
sketch26.AttachmentSupport = (doc.getObject("XY_Plane"), [""])
sketch26.MapMode = "FlatFace"
sketch26.AttachmentOffset = App.Placement(V(0, 0, -13.5), App.Rotation())
add_polygon(sketch26, [(51.55, 17), (51.55, 5), (46.45, 5), (46.45, 17)])
sketch26.addGeometry(Part.LineSegment(V(51.55, 5, 0), V(46.45, 5, 0)), True)
sketch26.addConstraint(Sketcher.Constraint("Vertical", 0))
sketch26.addConstraint(Sketcher.Constraint("Horizontal", 1))
sketch26.addConstraint(Sketcher.Constraint("Vertical", 2))
sketch26.addConstraint(Sketcher.Constraint("Horizontal", 3))
sketch26.addConstraint(Sketcher.Constraint("Horizontal", 4))
sketch26.addConstraint(Sketcher.Constraint("Coincident", 4, 1, 0, 2))
sketch26.addConstraint(Sketcher.Constraint("Vertical", 2, 2, 4, 2))
sketch26.addConstraint(Sketcher.Constraint("DistanceY", 0, 2, 0, 1, Q("12 mm")))
sketch26.addConstraint(Sketcher.Constraint("DistanceX", 1, 2, 1, 1, Q("5.1 mm")))
sketch26.addConstraint(Sketcher.Constraint("DistanceY", -1, 1, 0, 2, Q("5 mm")))
sketch26.addConstraint(Sketcher.Constraint("DistanceX", -1, 1, 0, 2, Q("51.55 mm")))
groove4 = body.newObject("PartDesign::Groove", "Groove003")
groove4.Profile = sketch26
groove4.ReferenceAxis = (sketch26, ["Axis0"])
groove4.Angle = 360

sketch27 = body.newObject("Sketcher::SketchObject", "Sketch026")
sketch27.AttachmentSupport = (doc.getObject("XY_Plane"), [""])
sketch27.MapMode = "FlatFace"
sketch27.AttachmentOffset = App.Placement(V(0, 0, -13.5), App.Rotation())
add_polygon(sketch27, [(46.45, 33.5), (46.45, 5), (31.5, 5), (31.5, 33.5)])
sketch27.addGeometry(Part.LineSegment(V(46.45, 5, 0), V(31.5, 5, 0)), True)
sketch27.addConstraint(Sketcher.Constraint("Vertical", 0))
sketch27.addConstraint(Sketcher.Constraint("Horizontal", 1))
sketch27.addConstraint(Sketcher.Constraint("Vertical", 2))
sketch27.addConstraint(Sketcher.Constraint("Horizontal", 3))
sketch27.addConstraint(Sketcher.Constraint("Horizontal", 4))
sketch27.addConstraint(Sketcher.Constraint("Coincident", 4, 1, 0, 2))
sketch27.addConstraint(Sketcher.Constraint("Vertical", 2, 2, 4, 2))
sketch27.addConstraint(Sketcher.Constraint("DistanceY", 0, 2, 0, 1, Q("28.5 mm")))
sketch27.addConstraint(Sketcher.Constraint("DistanceY", -1, 1, 0, 2, Q("5 mm")))
sketch27.addConstraint(Sketcher.Constraint("DistanceX", 1, 2, 1, 1, Q("14.95 mm")))
sketch27.addConstraint(Sketcher.Constraint("DistanceX", -1, 1, 1, 2, Q("31.5 mm")))
groove5 = body.newObject("PartDesign::Groove", "Groove004")
groove5.Profile = sketch27
groove5.ReferenceAxis = (sketch27, ["Axis0"])
groove5.Angle = 360

sketch28 = body.newObject("Sketcher::SketchObject", "Sketch027")
sketch28.AttachmentSupport = (doc.getObject("XY_Plane"), [""])
sketch28.MapMode = "FlatFace"
sketch28.AttachmentOffset = App.Placement(V(0, 0, -13.5), App.Rotation())
add_polygon(sketch28, [(14.05, 17), (14.05, 5), (8.95, 5), (8.95, 17)])
add_polygon(sketch28, [(4.05, 17), (4.05, 5), (-1.05, 5), (-1.05, 17)])
sketch28.addGeometry(Part.LineSegment(V(14.05, 5, 0), V(-1.05, 5, 0)), True)
sketch28.addConstraint(Sketcher.Constraint("Vertical", 0))
sketch28.addConstraint(Sketcher.Constraint("Horizontal", 1))
sketch28.addConstraint(Sketcher.Constraint("Vertical", 2))
sketch28.addConstraint(Sketcher.Constraint("Horizontal", 3))
sketch28.addConstraint(Sketcher.Constraint("Vertical", 4))
sketch28.addConstraint(Sketcher.Constraint("Horizontal", 5))
sketch28.addConstraint(Sketcher.Constraint("Vertical", 6))
sketch28.addConstraint(Sketcher.Constraint("Horizontal", 7))
sketch28.addConstraint(Sketcher.Constraint("Horizontal", 8))
sketch28.addConstraint(Sketcher.Constraint("Coincident", 8, 1, 0, 2))
sketch28.addConstraint(Sketcher.Constraint("Coincident", 8, 2, 5, 2))
sketch28.addConstraint(Sketcher.Constraint("Horizontal", 3, 2, 6, 2))
sketch28.addConstraint(Sketcher.Constraint("Equal", 3, 5))
sketch28.addConstraint(Sketcher.Constraint("DistanceY", 0, 2, 0, 1, Q("12 mm")))
sketch28.addConstraint(Sketcher.Constraint("DistanceX", 1, 2, 1, 1, Q("5.1 mm")))
sketch28.addConstraint(Sketcher.Constraint("DistanceX", 8, 2, 8, 1, Q("15.1 mm")))
sketch28.addConstraint(Sketcher.Constraint("DistanceY", -1, 1, 0, 2, Q("5 mm")))
sketch28.addConstraint(Sketcher.Constraint("DistanceX", -1, 1, 0, 2, Q("14.05 mm")))
groove6 = body.newObject("PartDesign::Groove", "Groove005")
groove6.Profile = sketch28
groove6.ReferenceAxis = (sketch28, ["Axis0"])
groove6.Angle = 360

sketch29 = body.newObject("Sketcher::SketchObject", "Sketch028")
sketch29.AttachmentSupport = (doc.getObject("XY_Plane"), [""])
sketch29.MapMode = "FlatFace"
sketch29.AttachmentOffset = App.Placement(V(0, 0, -13.5), App.Rotation())
add_polygon(sketch29, [(60.5, 5), (51.55, 5), (51.55, 15.5), (60.5, 15.5)])
sketch29.addGeometry(Part.LineSegment(V(60.5, 5, 0), V(51.55, 5, 0)), True)
sketch29.addConstraint(Sketcher.Constraint("Horizontal", 0))
sketch29.addConstraint(Sketcher.Constraint("Vertical", 1))
sketch29.addConstraint(Sketcher.Constraint("Horizontal", 2))
sketch29.addConstraint(Sketcher.Constraint("Vertical", 3))
sketch29.addConstraint(Sketcher.Constraint("Horizontal", 4))
sketch29.addConstraint(Sketcher.Constraint("Coincident", 4, 1, 3, 2))
sketch29.addConstraint(Sketcher.Constraint("Vertical", 1, 2, 4, 2))
sketch29.addConstraint(Sketcher.Constraint("DistanceY", 1, 1, 1, 2, Q("10.5 mm")))
sketch29.addConstraint(Sketcher.Constraint("DistanceY", -1, 1, 0, 2, Q("5 mm")))
sketch29.addConstraint(Sketcher.Constraint("DistanceX", 0, 2, 0, 1, Q("8.95 mm")))
sketch29.addConstraint(Sketcher.Constraint("DistanceX", -1, 1, 2, 2, Q("60.5 mm")))
groove7 = body.newObject("PartDesign::Groove", "Groove006")
groove7.Profile = sketch29
groove7.ReferenceAxis = (sketch29, ["Axis0"])
groove7.Angle = 360

sketch30 = body.newObject("Sketcher::SketchObject", "Sketch029")
sketch30.AttachmentSupport = (doc.getObject("XY_Plane"), [""])
sketch30.MapMode = "FlatFace"
sketch30.AttachmentOffset = App.Placement(V(0, 0, -13.5), App.Rotation())
add_polygon(sketch30, [(31.5, 23), (31.5, 5), (14.05, 5), (14.05, 15.5)])
sketch30.addGeometry(Part.LineSegment(V(31.5, 5, 0), V(14.05, 5, 0)), True)
sketch30.addConstraint(Sketcher.Constraint("Vertical", 0))
sketch30.addConstraint(Sketcher.Constraint("Horizontal", 1))
sketch30.addConstraint(Sketcher.Constraint("Vertical", 2))
sketch30.addConstraint(Sketcher.Constraint("Horizontal", 4))
sketch30.addConstraint(Sketcher.Constraint("Coincident", 4, 1, 0, 2))
sketch30.addConstraint(Sketcher.Constraint("Vertical", 2, 2, 4, 2))
sketch30.addConstraint(Sketcher.Constraint("DistanceY", 0, 2, 0, 1, Q("18 mm")))
sketch30.addConstraint(Sketcher.Constraint("DistanceY", 2, 1, 2, 2, Q("10.5 mm")))
sketch30.addConstraint(Sketcher.Constraint("DistanceY", -1, 1, 0, 2, Q("5 mm")))
sketch30.addConstraint(Sketcher.Constraint("DistanceX", 1, 2, 1, 1, Q("17.45 mm")))
sketch30.addConstraint(Sketcher.Constraint("DistanceX", -1, 1, 0, 2, Q("31.5 mm")))
groove8 = body.newObject("PartDesign::Groove", "Groove007")
groove8.Profile = sketch30
groove8.ReferenceAxis = (sketch30, ["Axis0"])
groove8.Angle = 360

sketch31 = body.newObject("Sketcher::SketchObject", "Sketch030")
sketch31.AttachmentSupport = (doc.getObject("XY_Plane"), [""])
sketch31.MapMode = "FlatFace"
sketch31.AttachmentOffset = App.Placement(V(0, 0, -13.5), App.Rotation())
add_polygon(sketch31, [(8.95, 15.5), (8.95, 5), (4.05, 5), (4.05, 15.5)])
sketch31.addGeometry(Part.LineSegment(V(4.05, 5, 0), V(8.95, 5, 0)), True)
sketch31.addConstraint(Sketcher.Constraint("Vertical", 0))
sketch31.addConstraint(Sketcher.Constraint("Horizontal", 1))
sketch31.addConstraint(Sketcher.Constraint("Vertical", 2))
sketch31.addConstraint(Sketcher.Constraint("Horizontal", 3))
sketch31.addConstraint(Sketcher.Constraint("Horizontal", 4))
sketch31.addConstraint(Sketcher.Constraint("Coincident", 4, 1, 1, 2))
sketch31.addConstraint(Sketcher.Constraint("Vertical", 3, 2, 4, 2))
sketch31.addConstraint(Sketcher.Constraint("DistanceX", 1, 2, 1, 1, Q("4.9 mm")))
sketch31.addConstraint(Sketcher.Constraint("DistanceY", 0, 2, 0, 1, Q("10.5 mm")))
sketch31.addConstraint(Sketcher.Constraint("DistanceY", -1, 1, 0, 2, Q("5 mm")))
sketch31.addConstraint(Sketcher.Constraint("DistanceX", -1, 1, 0, 2, Q("8.95 mm")))
groove9 = body.newObject("PartDesign::Groove", "Groove008")
groove9.Profile = sketch31
groove9.ReferenceAxis = (sketch31, ["Axis0"])
groove9.Angle = 360

sketch32 = body.newObject("Sketcher::SketchObject", "Sketch031")
sketch32.AttachmentSupport = (doc.getObject("XY_Plane"), [""])
sketch32.MapMode = "FlatFace"
sketch32.AttachmentOffset = App.Placement(V(0, 0, -13.5), App.Rotation())
add_polygon(sketch32, [(-14.05, 5), (-1.05, 5), (-1.05, -5.5), (-5.05, -5.5), (-14.05, -2.5)])
sketch32.addGeometry(Part.LineSegment(V(-1.05, 5, 0), V(-14.05, 5, 0)), True)
sketch32.addConstraint(Sketcher.Constraint("Horizontal", 0))
sketch32.addConstraint(Sketcher.Constraint("Vertical", 1))
sketch32.addConstraint(Sketcher.Constraint("Horizontal", 2))
sketch32.addConstraint(Sketcher.Constraint("Vertical", 4))
sketch32.addConstraint(Sketcher.Constraint("Horizontal", 5))
sketch32.addConstraint(Sketcher.Constraint("Coincident", 5, 1, 0, 2))
sketch32.addConstraint(Sketcher.Constraint("Vertical", 3, 2, 5, 2))
sketch32.addConstraint(Sketcher.Constraint("DistanceX", 0, 1, 0, 2, Q("13 mm")))
sketch32.addConstraint(Sketcher.Constraint("DistanceX", 2, 2, 2, 1, Q("4 mm")))
sketch32.addConstraint(Sketcher.Constraint("DistanceY", 1, 2, 1, 1, Q("10.5 mm")))
sketch32.addConstraint(Sketcher.Constraint("DistanceY", 4, 1, 4, 2, Q("7.5 mm")))
sketch32.addConstraint(Sketcher.Constraint("DistanceY", -1, 1, 0, 2, Q("5 mm")))
sketch32.addConstraint(Sketcher.Constraint("DistanceX", 0, 2, -1, 1, Q("1.05 mm")))
groove10 = body.newObject("PartDesign::Groove", "Groove009")
groove10.Profile = sketch32
groove10.ReferenceAxis = (sketch32, ["Axis0"])
groove10.Angle = 360

sketch33 = body.newObject("Sketcher::SketchObject", "Sketch032")
sketch33.AttachmentSupport = (doc.getObject("YZ_Plane"), [""])
sketch33.MapMode = "FlatFace"
sketch33.AttachmentOffset = App.Placement(V(0, 0, 68.5), App.Rotation())
sketch33.addGeometry(Part.ArcOfCircle(Part.Circle(V(5, -13.5, 0), V(0, 0, 1), 10.5), math.radians(0), math.radians(180)), False)
sketch33.addGeometry(Part.LineSegment(V(15.5, -13.5, 0), V(40, -13.5, 0)), False)
sketch33.addGeometry(Part.LineSegment(V(40, -13.5, 0), V(40, 19.5, 0)), False)
sketch33.addGeometry(Part.LineSegment(V(40, 19.5, 0), V(-43, 19.5, 0)), False)
sketch33.addGeometry(Part.LineSegment(V(-43, 19.5, 0), V(-43, 2.06, 0)), False)
sketch33.addGeometry(Part.LineSegment(V(-43, 2.06, 0), V(-32.91, 2.06, 0)), False)
sketch33.addGeometry(Part.ArcOfCircle(Part.Circle(V(-26.91, 2.06, 0), V(0, 0, 1), 6), math.radians(0), math.radians(180)), False)
sketch33.addGeometry(Part.LineSegment(V(-20.91, 2.06, 0), V(-10, 2.06, 0)), False)
sketch33.addGeometry(Part.LineSegment(V(-10, 2.06, 0), V(-10, -13.5, 0)), False)
sketch33.addGeometry(Part.LineSegment(V(-10, -13.5, 0), V(-5.5, -13.5, 0)), False)
sketch33.addConstraint(Sketcher.Constraint("Coincident", 0, 1, 1, 1))
sketch33.addConstraint(Sketcher.Constraint("Coincident", 1, 2, 2, 1))
sketch33.addConstraint(Sketcher.Constraint("Coincident", 2, 2, 3, 1))
sketch33.addConstraint(Sketcher.Constraint("Coincident", 3, 2, 4, 1))
sketch33.addConstraint(Sketcher.Constraint("Coincident", 4, 2, 5, 1))
sketch33.addConstraint(Sketcher.Constraint("Coincident", 5, 2, 6, 2))
sketch33.addConstraint(Sketcher.Constraint("Coincident", 6, 1, 7, 1))
sketch33.addConstraint(Sketcher.Constraint("Coincident", 7, 2, 8, 1))
sketch33.addConstraint(Sketcher.Constraint("Coincident", 8, 2, 9, 1))
sketch33.addConstraint(Sketcher.Constraint("Coincident", 9, 2, 0, 2))
sketch33.addConstraint(Sketcher.Constraint("Horizontal", 1))
sketch33.addConstraint(Sketcher.Constraint("Vertical", 2))
sketch33.addConstraint(Sketcher.Constraint("Horizontal", 3))
sketch33.addConstraint(Sketcher.Constraint("Vertical", 4))
sketch33.addConstraint(Sketcher.Constraint("Horizontal", 5))
sketch33.addConstraint(Sketcher.Constraint("Horizontal", 7))
sketch33.addConstraint(Sketcher.Constraint("Vertical", 8))
sketch33.addConstraint(Sketcher.Constraint("Horizontal", 9))
sketch33.addConstraint(Sketcher.Constraint("Horizontal", 6, 3, 4, 2))
sketch33.addConstraint(Sketcher.Constraint("Horizontal", 5, 2, 6, 1))
sketch33.addConstraint(Sketcher.Constraint("Horizontal", 1, 2, 8, 2))
sketch33.addConstraint(Sketcher.Constraint("Radius", 6, Q("6 mm")))
sketch33.addConstraint(Sketcher.Constraint("Radius", 0, Q("10.5 mm")))
sketch33.addConstraint(Sketcher.Constraint("DistanceX", 3, 2, 3, 1, Q("83 mm")))
sketch33.addConstraint(Sketcher.Constraint("DistanceY", 2, 1, 2, 2, Q("33 mm")))
sketch33.addConstraint(Sketcher.Constraint("DistanceX", 1, 1, 1, 2, Q("24.5 mm")))
sketch33.addConstraint(Sketcher.Constraint("DistanceX", 9, 1, 9, 2, Q("4.5 mm")))
sketch33.addConstraint(Sketcher.Constraint("DistanceX", -1, 1, 0, 3, Q("5 mm")))
sketch33.addConstraint(Sketcher.Constraint("DistanceY", 0, 3, 2, 2, Q("33 mm")))
sketch33.addConstraint(Sketcher.Constraint("DistanceX", 5, 1, 5, 2, Q("10.09 mm")))
sketch33.addConstraint(Sketcher.Constraint("DistanceY", 4, 2, 4, 1, Q("17.44 mm")))
sketch33.addConstraint(Sketcher.Constraint("DistanceY", 0, 3, -1, 1, Q("13.5 mm")))
pad5 = body.newObject("PartDesign::Pad", "Pad004")
pad5.Profile = sketch33
pad5.Length = 1

doc.recompute()
